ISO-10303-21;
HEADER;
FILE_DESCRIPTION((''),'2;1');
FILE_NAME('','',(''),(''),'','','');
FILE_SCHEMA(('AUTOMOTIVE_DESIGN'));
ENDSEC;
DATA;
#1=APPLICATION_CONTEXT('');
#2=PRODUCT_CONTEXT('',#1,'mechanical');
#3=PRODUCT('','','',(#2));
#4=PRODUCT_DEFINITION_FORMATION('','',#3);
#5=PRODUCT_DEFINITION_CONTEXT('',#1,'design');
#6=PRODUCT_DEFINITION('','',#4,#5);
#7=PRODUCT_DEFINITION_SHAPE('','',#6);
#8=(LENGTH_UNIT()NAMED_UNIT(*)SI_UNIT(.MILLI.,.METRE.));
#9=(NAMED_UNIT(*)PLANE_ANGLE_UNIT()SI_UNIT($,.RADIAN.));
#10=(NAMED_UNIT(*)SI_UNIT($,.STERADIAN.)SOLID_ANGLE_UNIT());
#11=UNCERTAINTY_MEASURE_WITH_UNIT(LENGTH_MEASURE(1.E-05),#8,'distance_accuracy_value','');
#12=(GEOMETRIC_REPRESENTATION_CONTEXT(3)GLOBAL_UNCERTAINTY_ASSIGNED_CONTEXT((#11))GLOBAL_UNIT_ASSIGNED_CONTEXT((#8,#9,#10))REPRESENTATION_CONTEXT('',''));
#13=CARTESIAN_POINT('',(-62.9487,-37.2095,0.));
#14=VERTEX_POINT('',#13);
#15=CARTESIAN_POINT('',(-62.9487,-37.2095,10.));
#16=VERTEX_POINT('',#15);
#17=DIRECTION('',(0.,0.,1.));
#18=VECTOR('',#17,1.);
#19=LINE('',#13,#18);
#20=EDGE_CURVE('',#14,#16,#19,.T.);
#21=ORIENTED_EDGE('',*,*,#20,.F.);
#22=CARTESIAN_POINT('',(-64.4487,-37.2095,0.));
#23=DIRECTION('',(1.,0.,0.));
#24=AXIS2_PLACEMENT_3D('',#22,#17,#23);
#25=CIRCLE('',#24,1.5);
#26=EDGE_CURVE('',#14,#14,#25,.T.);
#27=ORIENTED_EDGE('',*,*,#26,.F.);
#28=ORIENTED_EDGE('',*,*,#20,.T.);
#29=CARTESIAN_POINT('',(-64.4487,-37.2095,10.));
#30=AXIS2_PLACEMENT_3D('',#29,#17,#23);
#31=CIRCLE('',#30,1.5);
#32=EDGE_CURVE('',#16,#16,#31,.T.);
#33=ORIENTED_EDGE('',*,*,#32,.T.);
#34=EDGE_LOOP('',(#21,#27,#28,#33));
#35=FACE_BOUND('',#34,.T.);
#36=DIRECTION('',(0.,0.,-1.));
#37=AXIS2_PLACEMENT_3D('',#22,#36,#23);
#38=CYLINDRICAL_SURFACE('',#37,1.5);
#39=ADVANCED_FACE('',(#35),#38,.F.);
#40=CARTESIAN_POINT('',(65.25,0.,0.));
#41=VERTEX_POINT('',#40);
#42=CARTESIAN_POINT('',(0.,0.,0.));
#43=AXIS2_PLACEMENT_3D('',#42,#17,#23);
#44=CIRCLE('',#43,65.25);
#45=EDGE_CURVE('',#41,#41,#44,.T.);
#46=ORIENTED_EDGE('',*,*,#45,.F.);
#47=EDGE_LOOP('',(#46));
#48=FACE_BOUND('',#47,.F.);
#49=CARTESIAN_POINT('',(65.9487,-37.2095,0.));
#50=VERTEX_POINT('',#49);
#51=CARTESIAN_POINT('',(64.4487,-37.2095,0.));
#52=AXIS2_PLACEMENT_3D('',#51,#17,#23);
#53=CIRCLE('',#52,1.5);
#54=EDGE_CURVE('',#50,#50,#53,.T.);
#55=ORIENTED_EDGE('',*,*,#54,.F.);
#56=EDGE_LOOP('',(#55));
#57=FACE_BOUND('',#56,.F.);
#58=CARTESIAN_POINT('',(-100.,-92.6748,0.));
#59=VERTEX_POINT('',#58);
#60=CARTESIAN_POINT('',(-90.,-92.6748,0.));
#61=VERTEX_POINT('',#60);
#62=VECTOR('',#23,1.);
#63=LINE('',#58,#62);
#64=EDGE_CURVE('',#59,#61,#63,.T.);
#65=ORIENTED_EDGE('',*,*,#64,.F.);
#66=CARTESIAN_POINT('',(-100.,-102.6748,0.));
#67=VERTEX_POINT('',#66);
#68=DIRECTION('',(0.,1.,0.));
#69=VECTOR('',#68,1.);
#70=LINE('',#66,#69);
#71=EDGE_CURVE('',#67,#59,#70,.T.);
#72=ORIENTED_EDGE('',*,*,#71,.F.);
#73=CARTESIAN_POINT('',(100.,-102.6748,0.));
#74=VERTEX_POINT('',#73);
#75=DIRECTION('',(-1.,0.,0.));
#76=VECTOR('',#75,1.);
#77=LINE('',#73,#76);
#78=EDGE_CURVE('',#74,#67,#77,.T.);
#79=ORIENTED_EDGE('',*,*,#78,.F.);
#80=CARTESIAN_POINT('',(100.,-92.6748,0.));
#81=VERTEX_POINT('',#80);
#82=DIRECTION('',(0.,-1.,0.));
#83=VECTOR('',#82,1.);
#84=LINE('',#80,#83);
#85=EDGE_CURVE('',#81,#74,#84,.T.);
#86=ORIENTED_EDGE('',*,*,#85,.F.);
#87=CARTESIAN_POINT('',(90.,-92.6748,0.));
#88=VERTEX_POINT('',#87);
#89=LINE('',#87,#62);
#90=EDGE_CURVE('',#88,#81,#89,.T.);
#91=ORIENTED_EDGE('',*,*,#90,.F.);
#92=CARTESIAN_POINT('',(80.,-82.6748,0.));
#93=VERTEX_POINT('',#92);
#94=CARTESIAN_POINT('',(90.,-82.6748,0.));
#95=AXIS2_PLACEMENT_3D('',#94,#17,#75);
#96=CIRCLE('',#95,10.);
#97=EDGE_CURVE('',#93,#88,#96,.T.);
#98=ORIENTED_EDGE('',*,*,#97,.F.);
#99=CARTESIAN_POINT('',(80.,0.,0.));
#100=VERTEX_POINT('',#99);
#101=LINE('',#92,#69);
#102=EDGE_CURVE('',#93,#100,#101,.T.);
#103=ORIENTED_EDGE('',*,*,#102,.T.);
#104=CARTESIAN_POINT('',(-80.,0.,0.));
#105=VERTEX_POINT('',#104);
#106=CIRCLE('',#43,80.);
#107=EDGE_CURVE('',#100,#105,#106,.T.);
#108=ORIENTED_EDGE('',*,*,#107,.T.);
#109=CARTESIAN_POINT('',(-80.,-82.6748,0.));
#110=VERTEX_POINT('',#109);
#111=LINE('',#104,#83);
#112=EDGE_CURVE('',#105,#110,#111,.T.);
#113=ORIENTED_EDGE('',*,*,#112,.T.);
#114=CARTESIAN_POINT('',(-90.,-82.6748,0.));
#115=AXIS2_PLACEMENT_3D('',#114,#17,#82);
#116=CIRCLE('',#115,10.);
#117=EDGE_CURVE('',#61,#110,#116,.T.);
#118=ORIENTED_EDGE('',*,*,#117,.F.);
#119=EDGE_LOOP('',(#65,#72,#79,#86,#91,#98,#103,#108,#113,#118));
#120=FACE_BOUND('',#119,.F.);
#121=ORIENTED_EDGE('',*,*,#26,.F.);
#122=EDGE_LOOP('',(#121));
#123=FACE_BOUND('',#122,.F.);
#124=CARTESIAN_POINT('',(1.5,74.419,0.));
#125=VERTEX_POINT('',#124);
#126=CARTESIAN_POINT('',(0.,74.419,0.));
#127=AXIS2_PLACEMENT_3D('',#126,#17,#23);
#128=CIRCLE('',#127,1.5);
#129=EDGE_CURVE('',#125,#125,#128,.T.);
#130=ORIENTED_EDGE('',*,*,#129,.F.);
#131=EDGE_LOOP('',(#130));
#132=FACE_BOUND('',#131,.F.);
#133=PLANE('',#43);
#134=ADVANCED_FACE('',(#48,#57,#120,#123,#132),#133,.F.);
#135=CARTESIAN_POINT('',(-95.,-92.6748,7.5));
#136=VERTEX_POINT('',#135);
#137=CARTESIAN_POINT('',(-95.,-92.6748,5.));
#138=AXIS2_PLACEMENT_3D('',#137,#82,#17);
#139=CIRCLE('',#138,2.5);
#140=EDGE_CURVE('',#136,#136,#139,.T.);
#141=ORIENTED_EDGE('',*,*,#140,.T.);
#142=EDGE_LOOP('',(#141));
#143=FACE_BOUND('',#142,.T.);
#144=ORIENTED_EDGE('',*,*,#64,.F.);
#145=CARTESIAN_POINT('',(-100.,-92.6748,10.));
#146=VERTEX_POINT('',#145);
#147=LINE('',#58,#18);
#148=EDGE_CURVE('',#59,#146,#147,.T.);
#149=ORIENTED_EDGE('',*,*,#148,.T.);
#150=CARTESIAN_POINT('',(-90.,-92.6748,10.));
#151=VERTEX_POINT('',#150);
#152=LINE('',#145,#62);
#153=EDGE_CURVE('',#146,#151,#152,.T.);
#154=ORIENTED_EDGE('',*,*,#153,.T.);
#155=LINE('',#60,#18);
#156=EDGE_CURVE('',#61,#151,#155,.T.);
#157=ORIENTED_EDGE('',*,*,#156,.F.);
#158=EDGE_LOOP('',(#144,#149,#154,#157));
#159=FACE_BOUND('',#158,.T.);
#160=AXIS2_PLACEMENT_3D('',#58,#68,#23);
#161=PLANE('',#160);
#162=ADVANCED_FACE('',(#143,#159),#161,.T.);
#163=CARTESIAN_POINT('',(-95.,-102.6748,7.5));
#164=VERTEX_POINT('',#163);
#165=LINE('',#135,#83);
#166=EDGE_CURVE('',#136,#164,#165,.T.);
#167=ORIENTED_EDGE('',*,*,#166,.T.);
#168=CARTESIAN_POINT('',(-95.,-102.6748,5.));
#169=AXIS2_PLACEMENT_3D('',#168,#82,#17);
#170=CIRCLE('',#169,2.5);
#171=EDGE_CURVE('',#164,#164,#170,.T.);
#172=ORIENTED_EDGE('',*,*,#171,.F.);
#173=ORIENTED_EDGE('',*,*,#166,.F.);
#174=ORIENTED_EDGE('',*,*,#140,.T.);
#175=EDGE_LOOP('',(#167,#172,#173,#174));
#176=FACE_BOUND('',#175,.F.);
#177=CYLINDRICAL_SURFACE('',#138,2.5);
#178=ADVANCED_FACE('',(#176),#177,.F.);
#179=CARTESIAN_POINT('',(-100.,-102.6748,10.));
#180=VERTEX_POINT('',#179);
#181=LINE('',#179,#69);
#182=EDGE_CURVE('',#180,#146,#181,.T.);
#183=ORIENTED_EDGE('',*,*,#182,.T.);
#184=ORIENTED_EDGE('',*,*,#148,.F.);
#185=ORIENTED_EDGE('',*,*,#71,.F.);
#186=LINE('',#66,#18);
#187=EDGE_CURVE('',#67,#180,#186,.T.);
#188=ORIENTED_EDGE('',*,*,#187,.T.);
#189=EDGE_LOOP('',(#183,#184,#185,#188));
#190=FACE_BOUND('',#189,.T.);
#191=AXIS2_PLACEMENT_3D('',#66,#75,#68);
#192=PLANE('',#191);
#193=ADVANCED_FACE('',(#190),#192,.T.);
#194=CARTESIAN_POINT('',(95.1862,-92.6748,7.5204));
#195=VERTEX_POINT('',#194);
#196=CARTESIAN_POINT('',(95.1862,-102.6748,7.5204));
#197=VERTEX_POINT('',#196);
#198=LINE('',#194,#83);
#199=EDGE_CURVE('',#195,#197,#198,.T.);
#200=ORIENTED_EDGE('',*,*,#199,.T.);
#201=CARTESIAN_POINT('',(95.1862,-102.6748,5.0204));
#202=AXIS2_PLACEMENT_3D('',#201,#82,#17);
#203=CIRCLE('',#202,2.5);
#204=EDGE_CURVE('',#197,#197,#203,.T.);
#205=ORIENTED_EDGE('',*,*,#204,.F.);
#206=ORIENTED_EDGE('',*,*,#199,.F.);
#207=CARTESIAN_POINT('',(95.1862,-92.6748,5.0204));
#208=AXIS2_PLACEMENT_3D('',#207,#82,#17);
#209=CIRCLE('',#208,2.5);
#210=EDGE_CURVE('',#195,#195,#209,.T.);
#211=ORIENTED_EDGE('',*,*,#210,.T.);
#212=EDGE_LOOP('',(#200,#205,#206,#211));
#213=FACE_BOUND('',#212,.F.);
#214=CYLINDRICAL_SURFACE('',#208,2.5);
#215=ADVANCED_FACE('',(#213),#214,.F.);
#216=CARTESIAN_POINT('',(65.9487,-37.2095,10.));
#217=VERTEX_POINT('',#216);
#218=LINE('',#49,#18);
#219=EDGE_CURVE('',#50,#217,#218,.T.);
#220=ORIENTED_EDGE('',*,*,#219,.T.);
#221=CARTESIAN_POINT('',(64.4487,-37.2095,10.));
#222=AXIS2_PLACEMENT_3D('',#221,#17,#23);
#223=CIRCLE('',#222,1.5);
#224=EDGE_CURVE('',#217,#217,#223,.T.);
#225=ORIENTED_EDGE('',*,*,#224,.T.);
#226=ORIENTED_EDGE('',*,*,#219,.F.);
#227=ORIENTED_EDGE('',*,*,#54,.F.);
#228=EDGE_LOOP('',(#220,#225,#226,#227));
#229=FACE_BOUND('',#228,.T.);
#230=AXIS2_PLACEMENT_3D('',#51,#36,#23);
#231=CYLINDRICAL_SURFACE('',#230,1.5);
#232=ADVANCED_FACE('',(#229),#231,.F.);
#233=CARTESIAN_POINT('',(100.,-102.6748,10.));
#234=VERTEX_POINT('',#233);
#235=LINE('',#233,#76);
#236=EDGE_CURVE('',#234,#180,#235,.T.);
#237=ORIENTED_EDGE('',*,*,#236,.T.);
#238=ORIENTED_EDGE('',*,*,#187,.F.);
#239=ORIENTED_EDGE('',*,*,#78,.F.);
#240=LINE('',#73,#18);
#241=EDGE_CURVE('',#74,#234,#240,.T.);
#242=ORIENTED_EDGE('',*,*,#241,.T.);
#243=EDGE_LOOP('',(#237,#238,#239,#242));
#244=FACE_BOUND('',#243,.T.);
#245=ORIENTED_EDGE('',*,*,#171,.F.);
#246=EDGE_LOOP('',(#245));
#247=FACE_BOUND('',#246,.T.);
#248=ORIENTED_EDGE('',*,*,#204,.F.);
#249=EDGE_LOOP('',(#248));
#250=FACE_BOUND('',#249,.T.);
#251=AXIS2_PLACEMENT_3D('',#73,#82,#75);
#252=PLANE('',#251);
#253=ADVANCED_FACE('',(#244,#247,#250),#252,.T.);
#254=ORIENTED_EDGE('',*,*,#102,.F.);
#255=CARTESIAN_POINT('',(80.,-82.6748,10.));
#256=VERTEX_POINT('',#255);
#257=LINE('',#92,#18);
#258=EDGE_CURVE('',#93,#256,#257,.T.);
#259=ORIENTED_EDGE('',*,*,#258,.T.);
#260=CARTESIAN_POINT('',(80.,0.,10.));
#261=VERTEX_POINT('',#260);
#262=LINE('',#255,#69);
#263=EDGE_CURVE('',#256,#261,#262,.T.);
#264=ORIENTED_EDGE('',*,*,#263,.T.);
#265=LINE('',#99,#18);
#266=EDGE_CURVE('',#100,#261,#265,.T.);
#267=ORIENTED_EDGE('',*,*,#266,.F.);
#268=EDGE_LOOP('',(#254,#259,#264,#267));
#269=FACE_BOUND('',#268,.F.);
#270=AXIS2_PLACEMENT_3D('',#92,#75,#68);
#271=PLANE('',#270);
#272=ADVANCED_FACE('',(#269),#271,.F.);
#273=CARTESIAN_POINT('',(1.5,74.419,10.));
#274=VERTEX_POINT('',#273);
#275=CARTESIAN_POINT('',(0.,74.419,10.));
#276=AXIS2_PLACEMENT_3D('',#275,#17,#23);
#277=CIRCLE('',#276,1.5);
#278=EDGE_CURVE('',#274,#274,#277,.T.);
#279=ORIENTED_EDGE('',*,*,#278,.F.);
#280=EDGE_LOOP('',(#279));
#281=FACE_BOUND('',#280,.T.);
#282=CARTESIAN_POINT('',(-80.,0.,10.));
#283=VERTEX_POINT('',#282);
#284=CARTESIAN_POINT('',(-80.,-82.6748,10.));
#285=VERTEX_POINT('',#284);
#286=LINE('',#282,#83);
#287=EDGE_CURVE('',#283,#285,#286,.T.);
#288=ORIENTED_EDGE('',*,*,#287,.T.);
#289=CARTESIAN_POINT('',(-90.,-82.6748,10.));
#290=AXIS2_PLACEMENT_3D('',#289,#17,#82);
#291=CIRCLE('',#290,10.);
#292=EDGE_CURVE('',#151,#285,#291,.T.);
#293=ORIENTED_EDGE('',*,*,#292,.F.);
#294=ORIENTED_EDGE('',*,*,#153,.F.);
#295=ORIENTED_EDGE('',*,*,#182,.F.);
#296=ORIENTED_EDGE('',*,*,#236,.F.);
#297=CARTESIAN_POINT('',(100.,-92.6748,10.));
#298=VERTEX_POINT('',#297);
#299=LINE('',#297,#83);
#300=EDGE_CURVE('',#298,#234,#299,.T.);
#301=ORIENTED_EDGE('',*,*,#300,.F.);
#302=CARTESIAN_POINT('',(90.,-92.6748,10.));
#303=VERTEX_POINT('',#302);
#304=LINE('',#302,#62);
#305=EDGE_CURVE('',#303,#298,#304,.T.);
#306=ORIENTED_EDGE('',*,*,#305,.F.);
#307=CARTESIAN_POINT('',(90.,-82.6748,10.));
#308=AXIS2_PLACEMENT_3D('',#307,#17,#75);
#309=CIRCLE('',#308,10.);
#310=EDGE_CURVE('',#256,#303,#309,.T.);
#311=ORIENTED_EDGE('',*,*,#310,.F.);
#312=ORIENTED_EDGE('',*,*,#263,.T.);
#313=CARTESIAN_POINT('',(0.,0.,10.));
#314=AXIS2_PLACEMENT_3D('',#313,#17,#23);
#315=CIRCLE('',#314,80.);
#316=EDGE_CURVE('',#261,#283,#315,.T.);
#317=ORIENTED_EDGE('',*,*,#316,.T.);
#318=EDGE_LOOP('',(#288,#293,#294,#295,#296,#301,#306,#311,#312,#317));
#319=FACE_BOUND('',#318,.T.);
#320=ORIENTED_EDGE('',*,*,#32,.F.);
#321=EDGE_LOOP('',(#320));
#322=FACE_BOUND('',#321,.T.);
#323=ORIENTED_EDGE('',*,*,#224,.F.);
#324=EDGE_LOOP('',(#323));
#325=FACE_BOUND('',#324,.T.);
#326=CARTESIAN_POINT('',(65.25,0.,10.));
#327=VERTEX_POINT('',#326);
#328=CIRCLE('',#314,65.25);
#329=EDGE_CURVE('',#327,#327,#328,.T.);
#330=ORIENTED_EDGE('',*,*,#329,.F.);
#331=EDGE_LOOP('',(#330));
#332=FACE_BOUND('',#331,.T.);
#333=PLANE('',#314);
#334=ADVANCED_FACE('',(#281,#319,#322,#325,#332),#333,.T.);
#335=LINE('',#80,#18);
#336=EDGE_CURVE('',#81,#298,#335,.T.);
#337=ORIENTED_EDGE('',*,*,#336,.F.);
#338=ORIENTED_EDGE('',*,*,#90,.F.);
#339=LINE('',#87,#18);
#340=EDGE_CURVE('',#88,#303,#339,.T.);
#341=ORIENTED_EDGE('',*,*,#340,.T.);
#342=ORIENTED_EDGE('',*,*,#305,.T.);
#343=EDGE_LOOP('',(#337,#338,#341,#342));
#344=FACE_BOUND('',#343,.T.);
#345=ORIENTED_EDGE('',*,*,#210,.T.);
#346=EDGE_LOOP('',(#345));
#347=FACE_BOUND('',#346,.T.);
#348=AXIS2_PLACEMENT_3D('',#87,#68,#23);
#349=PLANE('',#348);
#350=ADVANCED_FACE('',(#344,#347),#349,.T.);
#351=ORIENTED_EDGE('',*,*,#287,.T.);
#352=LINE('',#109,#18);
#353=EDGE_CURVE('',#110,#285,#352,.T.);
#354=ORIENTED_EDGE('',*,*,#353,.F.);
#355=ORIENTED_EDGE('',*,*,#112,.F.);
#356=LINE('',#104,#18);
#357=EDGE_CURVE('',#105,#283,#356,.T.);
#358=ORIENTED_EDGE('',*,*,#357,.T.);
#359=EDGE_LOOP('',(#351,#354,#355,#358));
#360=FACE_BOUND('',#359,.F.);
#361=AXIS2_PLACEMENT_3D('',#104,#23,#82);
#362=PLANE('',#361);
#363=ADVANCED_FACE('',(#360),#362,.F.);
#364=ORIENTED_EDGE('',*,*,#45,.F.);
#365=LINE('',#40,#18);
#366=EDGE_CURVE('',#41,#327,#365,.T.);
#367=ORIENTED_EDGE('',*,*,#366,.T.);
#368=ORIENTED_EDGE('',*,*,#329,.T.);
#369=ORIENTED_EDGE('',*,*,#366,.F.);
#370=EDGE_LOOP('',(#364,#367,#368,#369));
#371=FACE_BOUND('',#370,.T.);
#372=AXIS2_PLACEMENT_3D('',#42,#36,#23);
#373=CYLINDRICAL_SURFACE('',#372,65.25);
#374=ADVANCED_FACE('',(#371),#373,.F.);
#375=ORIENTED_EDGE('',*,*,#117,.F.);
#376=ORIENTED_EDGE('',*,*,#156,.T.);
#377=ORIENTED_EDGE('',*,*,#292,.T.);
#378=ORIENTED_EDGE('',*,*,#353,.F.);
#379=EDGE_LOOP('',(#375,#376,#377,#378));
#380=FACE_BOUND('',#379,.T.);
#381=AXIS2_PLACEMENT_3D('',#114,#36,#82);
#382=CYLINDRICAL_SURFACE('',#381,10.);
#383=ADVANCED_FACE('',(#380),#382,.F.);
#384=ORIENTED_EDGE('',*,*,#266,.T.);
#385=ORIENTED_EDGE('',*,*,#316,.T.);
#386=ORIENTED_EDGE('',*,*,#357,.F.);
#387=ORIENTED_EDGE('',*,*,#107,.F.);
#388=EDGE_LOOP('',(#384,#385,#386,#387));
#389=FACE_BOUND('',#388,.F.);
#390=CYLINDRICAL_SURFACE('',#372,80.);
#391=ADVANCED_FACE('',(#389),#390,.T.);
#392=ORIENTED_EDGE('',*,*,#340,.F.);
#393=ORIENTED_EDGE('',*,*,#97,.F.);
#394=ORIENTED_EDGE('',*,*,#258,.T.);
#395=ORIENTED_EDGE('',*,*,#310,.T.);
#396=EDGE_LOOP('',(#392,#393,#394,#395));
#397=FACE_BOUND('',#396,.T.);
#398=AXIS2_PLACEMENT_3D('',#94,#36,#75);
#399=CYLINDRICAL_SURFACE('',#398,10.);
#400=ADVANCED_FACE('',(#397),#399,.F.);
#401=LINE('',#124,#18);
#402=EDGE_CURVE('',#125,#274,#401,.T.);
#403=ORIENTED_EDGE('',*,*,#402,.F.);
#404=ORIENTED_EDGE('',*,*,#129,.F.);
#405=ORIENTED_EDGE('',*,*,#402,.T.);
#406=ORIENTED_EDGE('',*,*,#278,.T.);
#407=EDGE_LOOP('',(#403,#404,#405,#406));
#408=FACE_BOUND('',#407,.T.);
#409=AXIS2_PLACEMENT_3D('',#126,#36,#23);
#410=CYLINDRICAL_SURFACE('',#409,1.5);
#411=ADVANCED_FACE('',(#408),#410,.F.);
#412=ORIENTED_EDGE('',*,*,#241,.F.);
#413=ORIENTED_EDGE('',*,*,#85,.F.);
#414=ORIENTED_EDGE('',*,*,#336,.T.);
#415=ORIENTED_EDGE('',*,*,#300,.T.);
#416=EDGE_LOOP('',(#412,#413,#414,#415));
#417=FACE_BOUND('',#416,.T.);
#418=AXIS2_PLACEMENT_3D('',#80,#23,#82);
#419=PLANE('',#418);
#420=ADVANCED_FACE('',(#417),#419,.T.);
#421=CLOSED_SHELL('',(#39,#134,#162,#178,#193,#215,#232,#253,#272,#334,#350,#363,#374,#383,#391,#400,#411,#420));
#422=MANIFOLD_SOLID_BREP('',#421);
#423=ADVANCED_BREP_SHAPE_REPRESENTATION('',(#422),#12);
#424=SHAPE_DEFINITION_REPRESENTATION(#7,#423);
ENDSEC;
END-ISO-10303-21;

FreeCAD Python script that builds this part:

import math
import FreeCAD as App
import Part
import Sketcher
from FreeCAD import Vector
Q = App.Units.Quantity

doc = App.newDocument("Part")
body = doc.addObject("PartDesign::Body", "Body")

sketch1 = body.newObject("Sketcher::SketchObject", "Sketch")
sketch1.AttachmentSupport = (doc.getObject("XY_Plane"), [""])
sketch1.MapMode = "FlatFace"
sketch1.addGeometry([
    Part.ArcOfCircle(Part.Circle(Vector(0, 0, 0), Vector(0, 0, 1), 80), math.radians(0), math.radians(180)),
    Part.LineSegment(Vector(-80, 0, 0), Vector(-80, -82.6748, 0)),
    Part.ArcOfCircle(Part.Circle(Vector(-90, -82.6748, 0), Vector(0, 0, 1), 10), math.radians(-90), math.radians(0)),
    Part.LineSegment(Vector(-90, -92.6748, 0), Vector(-100, -92.6748, 0)),
    Part.LineSegment(Vector(-100, -92.6748, 0), Vector(-100, -102.6748, 0)),
    Part.LineSegment(Vector(-100, -102.6748, 0), Vector(100, -102.6748, 0)),
    Part.LineSegment(Vector(100, -102.6748, 0), Vector(100, -92.6748, 0)),
    Part.LineSegment(Vector(100, -92.6748, 0), Vector(90, -92.6748, 0)),
    Part.ArcOfCircle(Part.Circle(Vector(90, -82.6748, 0), Vector(0, 0, 1), 10), math.radians(180), math.radians(270)),
    Part.LineSegment(Vector(80, -82.6748, 0), Vector(80, 0, 0)),
    Part.Circle(Vector(-64.4487, -37.2095, 0), Vector(0, 0, 1), 1.5),
    Part.Circle(Vector(64.4487, -37.2095, 0), Vector(0, 0, 1), 1.5),
    Part.Circle(Vector(0, 0, 0), Vector(0, 0, 1), 65.25),
    Part.Circle(Vector(0, 74.419, 0), Vector(0, 0, 1), 1.5),
], False)
sketch1.addConstraint([
    Sketcher.Constraint("Tangent", 0, 2, 1, 1),
    Sketcher.Constraint("Tangent", 1, 2, 2, 2),
    Sketcher.Constraint("Tangent", 2, 1, 3, 1),
    Sketcher.Constraint("Coincident", 3, 2, 4, 1),
    Sketcher.Constraint("Coincident", 4, 2, 5, 1),
    Sketcher.Constraint("Coincident", 5, 2, 6, 1),
    Sketcher.Constraint("Coincident", 6, 2, 7, 1),
    Sketcher.Constraint("Tangent", 7, 2, 8, 2),
    Sketcher.Constraint("Tangent", 8, 1, 9, 1),
    Sketcher.Constraint("Tangent", 9, 2, 0, 1),
    Sketcher.Constraint("Vertical", 1),
    Sketcher.Constraint("Horizontal", 3),
    Sketcher.Constraint("Vertical", 4),
    Sketcher.Constraint("Horizontal", 5),
    Sketcher.Constraint("Vertical", 6),
    Sketcher.Constraint("Horizontal", 7),
    Sketcher.Constraint("Vertical", 9),
    Sketcher.Constraint("Coincident", 0, 3, -1, 1),
    Sketcher.Constraint("Coincident", 12, 3, -1, 1),
    Sketcher.Constraint("Equal", 2, 8),
    Sketcher.Constraint("Equal", 10, 11),
    Sketcher.Constraint("Equal", 11, 13),
    Sketcher.Constraint("Symmetric", 10, 3, 11, 3, -2),
    Sketcher.Constraint("Symmetric", 3, 2, 6, 2, -2),
    Sketcher.Constraint("PointOnObject", 13, 3, -2),
    Sketcher.Constraint("Equal", 7, 4),
    Sketcher.Constraint("Diameter", 10, Q("3 mm")),
    Sketcher.Constraint("Radius", 0, Q("80 mm")),
    Sketcher.Constraint("Radius", 2, Q("10 mm")),
    Sketcher.Constraint("Diameter", 12, Q("130.5 mm")),
    Sketcher.Constraint("DistanceX", 3, 2, 3, 1, Q("10 mm")),
    Sketcher.Constraint("DistanceY", 1, 2, 1, 1, Q("82.6748 mm")),
    Sketcher.Constraint("DistanceY", -1, 1, 13, 3, Q("74.419 mm")),
    Sketcher.Constraint("DistanceX", 10, 3, -1, 1, Q("64.4487 mm")),
    Sketcher.Constraint("DistanceY", 10, 3, -1, 1, Q("37.2095 mm")),
])
pad1 = body.newObject("PartDesign::Pad", "Pad")
pad1.Profile = sketch1
pad1.Length = 10

sketch2 = body.newObject("Sketcher::SketchObject", "Sketch001")
sketch2.AttachmentSupport = (doc.getObject("XZ_Plane"), [""])
sketch2.MapMode = "FlatFace"
sketch2.AttachmentOffset = App.Placement(Vector(0, 0, 92.6748), App.Rotation())
sketch2.addGeometry(Part.Circle(Vector(-95, 5, 0), Vector(0, 0, 1), 2.5), False)
sketch2.addConstraint([
    Sketcher.Constraint("Diameter", 0, Q("5 mm")),
    Sketcher.Constraint("DistanceX", 0, 3, -1, 1, Q("95 mm")),
    Sketcher.Constraint("DistanceY", -1, 1, 0, 3, Q("5 mm")),
])
doc.recompute()
hole = body.newObject("PartDesign::Hole", "Hole")
hole.Profile = sketch2
hole.ThreadType = "None"
hole.Diameter = 5
hole.DepthType = "Dimension"
hole.Depth = 10
hole.DrillPoint = "Angled"
hole.DrillPointAngle = 118
hole.Reversed = True

sketch3 = body.newObject("Sketcher::SketchObject", "Sketch002")
sketch3.AttachmentSupport = (doc.getObject("XZ_Plane"), [""])
sketch3.MapMode = "FlatFace"
sketch3.AttachmentOffset = App.Placement(Vector(0, 0, 92.6748), App.Rotation())
sketch3.addGeometry(Part.Circle(Vector(95.1862, 5.0204, 0), Vector(0, 0, 1), 2.5), False)
sketch3.addConstraint([
    Sketcher.Constraint("Diameter", 0, Q("5 mm")),
    Sketcher.Constraint("DistanceX", -1, 1, 0, 3, Q("95.1862 mm")),
    Sketcher.Constraint("DistanceY", -1, 1, 0, 3, Q("5.0204 mm")),
])
doc.recompute()
hole2 = body.newObject("PartDesign::Hole", "Hole001")
hole2.Profile = sketch3
hole2.ThreadType = "None"
hole2.Diameter = 5
hole2.DepthType = "Dimension"
hole2.Depth = 10
hole2.DrillPoint = "Angled"
hole2.DrillPointAngle = 118
hole2.Reversed = True

doc.recompute()
